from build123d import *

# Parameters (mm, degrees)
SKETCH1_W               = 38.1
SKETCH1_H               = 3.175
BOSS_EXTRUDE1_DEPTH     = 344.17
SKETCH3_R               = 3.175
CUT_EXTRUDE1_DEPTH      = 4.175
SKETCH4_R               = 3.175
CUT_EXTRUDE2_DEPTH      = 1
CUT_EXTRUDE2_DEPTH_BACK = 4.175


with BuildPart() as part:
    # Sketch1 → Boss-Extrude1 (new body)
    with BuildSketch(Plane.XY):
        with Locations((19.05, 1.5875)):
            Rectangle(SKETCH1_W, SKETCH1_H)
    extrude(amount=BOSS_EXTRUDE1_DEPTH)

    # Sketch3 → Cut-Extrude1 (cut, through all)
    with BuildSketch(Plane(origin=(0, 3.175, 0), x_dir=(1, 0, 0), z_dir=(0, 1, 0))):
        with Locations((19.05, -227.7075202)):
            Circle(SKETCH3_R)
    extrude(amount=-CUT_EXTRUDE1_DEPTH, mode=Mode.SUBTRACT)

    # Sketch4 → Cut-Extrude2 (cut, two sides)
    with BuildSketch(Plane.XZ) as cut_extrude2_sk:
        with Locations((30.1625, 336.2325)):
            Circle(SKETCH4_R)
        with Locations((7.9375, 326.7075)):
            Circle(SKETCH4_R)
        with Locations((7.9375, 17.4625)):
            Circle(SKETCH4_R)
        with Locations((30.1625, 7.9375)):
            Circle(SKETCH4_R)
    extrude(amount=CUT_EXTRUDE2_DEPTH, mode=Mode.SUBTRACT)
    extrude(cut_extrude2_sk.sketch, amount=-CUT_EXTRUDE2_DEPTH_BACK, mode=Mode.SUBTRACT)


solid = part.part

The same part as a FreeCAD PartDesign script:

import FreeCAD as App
import Part
import Sketcher
from FreeCAD import Vector
Q = App.Units.Quantity


def add_polygon(sketch, points):
    """Adds a closed chain of lines whose ends are joined by coincident constraints."""
    first, n = sketch.GeometryCount, len(points)
    for a, b in zip(points, points[1:] + points[:1]):
        sketch.addGeometry(Part.LineSegment(App.Vector(*a, 0), App.Vector(*b, 0)), False)
    for i in range(n):
        sketch.addConstraint(Sketcher.Constraint("Coincident", first + i, 2, first + (i + 1) % n, 1))

doc = App.newDocument("Part")
body = doc.addObject("PartDesign::Body", "Body")

sketch1 = doc.addObject("Sketcher::SketchObject", "Sketch")
body.addObject(sketch1)
sketch1.AttachmentSupport = (doc.XY_Plane, [""])
sketch1.MapMode = "FlatFace"
add_polygon(sketch1, [(0, 3.2), (0, 0), (38.1, 0), (38.1, 3.2)])
sketch1.addConstraint([
    Sketcher.Constraint("Vertical", 0),
    Sketcher.Constraint("Horizontal", 1),
    Sketcher.Constraint("Vertical", 2),
    Sketcher.Constraint("Horizontal", 3),
    Sketcher.Constraint("Coincident", 0, 2, -1, 1),
    Sketcher.Constraint("DistanceX", 1, 1, 1, 2, Q("1.5 in")),
    Sketcher.Constraint("DistanceY", 0, 2, 0, 1, Q("0.125 in")),
])
pad1 = doc.addObject("PartDesign::Pad", "Pad")
body.addObject(pad1)
pad1.Profile = sketch1
pad1.Length = Q("13.55 in")

sketch2 = doc.addObject("Sketcher::SketchObject", "Sketch001")
body.addObject(sketch2)
sketch2.AttachmentSupport = (doc.XZ_Plane, [""])
sketch2.MapMode = "FlatFace"
sketch2.AttachmentOffset = App.Placement(Vector(0, 0, -0.125 * 25.4), App.Rotation())
sketch2.addGeometry(Part.Circle(Vector(19.1, 227.7, 0), Vector(0, 0, 1), 3.2), False)
sketch2.addConstraint([
    Sketcher.Constraint("Diameter", 0, Q("0.25 in")),
    Sketcher.Constraint("DistanceX", -1, 1, 0, 3, Q("0.75 in")),
    Sketcher.Constraint("DistanceY", -1, 1, 0, 3, Q("227.70752 mm")),
])
pocket1 = doc.addObject("PartDesign::Pocket", "Pocket")
body.addObject(pocket1)
pocket1.Profile = sketch2
pocket1.Type = "ThroughAll"
pocket1.Reversed = True

sketch3 = doc.addObject("Sketcher::SketchObject", "Sketch002")
body.addObject(sketch3)
sketch3.AttachmentSupport = (doc.XZ_Plane, [""])
sketch3.MapMode = "FlatFace"
sketch3.addGeometry([
    Part.Circle(Vector(30.2, 336.2, 0), Vector(0, 0, 1), 3.2),
    Part.Circle(Vector(7.9, 326.7, 0), Vector(0, 0, 1), 3.2),
    Part.Circle(Vector(7.9, 17.5, 0), Vector(0, 0, 1), 3.2),
    Part.Circle(Vector(30.2, 7.9, 0), Vector(0, 0, 1), 3.2),
], False)
sketch3.addConstraint([
    Sketcher.Constraint("Equal", 0, 1),
    Sketcher.Constraint("Equal", 1, 2),
    Sketcher.Constraint("Equal", 2, 3),
    Sketcher.Constraint("Vertical", 1, 3, 2, 3),
    Sketcher.Constraint("Vertical", 0, 3, 3, 3),
    Sketcher.Constraint("Diameter", 0, Q("0.25 in")),
    Sketcher.Constraint("DistanceY", 2, 3, 0, 3, Q("12.55 in")),
    Sketcher.Constraint("DistanceY", 3, 3, 1, 3, Q("12.55 in")),
    Sketcher.Constraint("DistanceX", -1, 1, 0, 3, Q("1.1875 in")),
    Sketcher.Constraint("DistanceX", -1, 1, 1, 3, Q("0.3125 in")),
    Sketcher.Constraint("DistanceY", -1, 1, 2, 3, Q("0.6875 in")),
    Sketcher.Constraint("DistanceY", -1, 1, 3, 3, Q("0.3125 in")),
])
pocket2 = doc.addObject("PartDesign::Pocket", "Pocket001")
body.addObject(pocket2)
pocket2.Profile = sketch3
pocket2.Type = "ThroughAll"
pocket2.Midplane = True

doc.recompute()
